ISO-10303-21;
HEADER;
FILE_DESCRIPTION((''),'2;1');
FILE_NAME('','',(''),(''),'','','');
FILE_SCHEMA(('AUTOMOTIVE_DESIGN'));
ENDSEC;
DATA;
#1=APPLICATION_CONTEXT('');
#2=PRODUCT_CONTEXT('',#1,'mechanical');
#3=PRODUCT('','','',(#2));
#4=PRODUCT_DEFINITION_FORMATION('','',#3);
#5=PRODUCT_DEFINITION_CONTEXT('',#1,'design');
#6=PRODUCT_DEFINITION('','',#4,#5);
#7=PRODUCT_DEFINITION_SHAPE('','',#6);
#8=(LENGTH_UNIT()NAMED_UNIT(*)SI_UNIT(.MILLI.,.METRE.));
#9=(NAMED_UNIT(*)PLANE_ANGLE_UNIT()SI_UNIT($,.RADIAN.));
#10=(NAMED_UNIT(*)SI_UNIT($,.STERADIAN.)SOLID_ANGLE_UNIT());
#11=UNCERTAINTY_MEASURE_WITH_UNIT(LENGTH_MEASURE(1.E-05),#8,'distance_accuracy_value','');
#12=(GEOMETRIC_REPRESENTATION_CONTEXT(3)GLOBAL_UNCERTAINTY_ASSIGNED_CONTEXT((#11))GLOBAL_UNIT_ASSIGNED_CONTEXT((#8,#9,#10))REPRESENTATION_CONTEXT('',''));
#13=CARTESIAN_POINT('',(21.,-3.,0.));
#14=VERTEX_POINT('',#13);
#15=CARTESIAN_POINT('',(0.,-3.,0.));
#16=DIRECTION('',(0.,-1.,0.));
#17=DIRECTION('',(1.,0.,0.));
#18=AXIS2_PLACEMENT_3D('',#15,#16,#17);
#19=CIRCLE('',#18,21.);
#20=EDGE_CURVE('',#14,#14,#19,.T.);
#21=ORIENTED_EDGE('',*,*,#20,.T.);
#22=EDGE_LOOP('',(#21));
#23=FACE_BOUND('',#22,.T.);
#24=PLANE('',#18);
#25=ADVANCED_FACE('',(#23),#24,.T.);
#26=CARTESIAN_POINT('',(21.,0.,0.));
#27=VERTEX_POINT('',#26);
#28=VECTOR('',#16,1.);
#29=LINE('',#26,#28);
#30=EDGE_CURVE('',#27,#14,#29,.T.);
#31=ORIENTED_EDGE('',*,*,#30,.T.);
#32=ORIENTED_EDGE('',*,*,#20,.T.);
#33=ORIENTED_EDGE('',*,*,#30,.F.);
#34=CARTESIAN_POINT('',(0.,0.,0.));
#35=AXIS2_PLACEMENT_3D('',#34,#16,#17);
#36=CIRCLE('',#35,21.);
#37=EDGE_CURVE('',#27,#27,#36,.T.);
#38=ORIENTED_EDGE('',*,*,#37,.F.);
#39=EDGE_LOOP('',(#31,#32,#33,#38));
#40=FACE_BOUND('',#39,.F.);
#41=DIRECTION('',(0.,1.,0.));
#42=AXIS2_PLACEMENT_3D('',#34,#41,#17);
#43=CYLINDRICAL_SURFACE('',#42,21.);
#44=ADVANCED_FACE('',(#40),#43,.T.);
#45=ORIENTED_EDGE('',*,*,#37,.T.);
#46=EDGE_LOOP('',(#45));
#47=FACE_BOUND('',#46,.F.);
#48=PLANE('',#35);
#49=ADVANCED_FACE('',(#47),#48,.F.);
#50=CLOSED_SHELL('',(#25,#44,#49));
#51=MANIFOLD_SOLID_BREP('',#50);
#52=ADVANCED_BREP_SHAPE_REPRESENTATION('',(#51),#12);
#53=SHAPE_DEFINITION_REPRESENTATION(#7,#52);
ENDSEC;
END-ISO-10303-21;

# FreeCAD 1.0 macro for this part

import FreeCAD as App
import Part
import Sketcher

V = App.Vector

doc = App.newDocument("Part")
body = doc.addObject("PartDesign::Body", "Body")

sketch1 = doc.addObject("Sketcher::SketchObject", "Sketch")
body.addObject(sketch1)
sketch1.AttachmentSupport = (doc.XZ_Plane, [""])
sketch1.MapMode = "FlatFace"
sketch1.addGeometry(Part.Circle(V(0, 0, 0), V(0, 0, 1), 21), False)
sketch1.addConstraint([
    Sketcher.Constraint("Coincident", 0, 3, -1, 1),
    Sketcher.Constraint("Diameter", 0, 42.0),
])
pad1 = doc.addObject("PartDesign::Pad", "Pad")
body.addObject(pad1)
pad1.Profile = sketch1
pad1.Length = 3

sketch2 = doc.addObject("Sketcher::SketchObject", "Sketch001")
body.addObject(sketch2)
sketch2.AttachmentSupport = (doc.XZ_Plane, [""])
sketch2.MapMode = "FlatFace"
sketch2.addGeometry([
    Part.Circle(V(0, 28.6, 0), V(0, 0, 1), 3.2),
    Part.Circle(V(0, 28.6, 0), V(0, 0, 1), 2.2),
    Part.Circle(V(24.9, -14.2, 0), V(0, 0, 1), 3.4),
    Part.Circle(V(24.9, -14.2, 0), V(0, 0, 1), 2.2),
    Part.Circle(V(-24.8, -14.2, 0), V(0, 0, 1), 3.2),
    Part.Circle(V(-24.8, -14.2, 0), V(0, 0, 1), 2.1),
], False)
sketch2.addConstraint([
    Sketcher.Constraint("Coincident", 1, 3, 0, 3),
    Sketcher.Constraint("Coincident", 3, 3, 2, 3),
    Sketcher.Constraint("Coincident", 5, 3, 4, 3),
    Sketcher.Constraint("PointOnObject", 0, 3, -2),
    Sketcher.Constraint("Horizontal", 3, 3, 4, 3),
    Sketcher.Constraint("Diameter", 1, 4.403192),
    Sketcher.Constraint("Diameter", 3, 4.44621),
    Sketcher.Constraint("Diameter", 0, 6.497752),
    Sketcher.Constraint("Diameter", 2, 6.785048),
    Sketcher.Constraint("Diameter", 4, 6.436856),
    Sketcher.Constraint("Diameter", 5, 4.195512),
    Sketcher.Constraint("DistanceX", 4, 3, -1, 1, 24.80519),
    Sketcher.Constraint("DistanceY", 2, 3, 0, 3, 42.821442),
    Sketcher.Constraint("DistanceY", -1, 1, 0, 3, 28.620865),
    Sketcher.Constraint("DistanceX", -1, 1, 2, 3, 24.881644),
])
pocket1 = doc.addObject("PartDesign::Pocket", "Pocket")
body.addObject(pocket1)
pocket1.Profile = sketch2
pocket1.Length = 25

sketch3 = doc.addObject("Sketcher::SketchObject", "Sketch002")
body.addObject(sketch3)
sketch3.AttachmentSupport = (doc.XZ_Plane, [""])
sketch3.MapMode = "FlatFace"
sketch3.addGeometry(Part.Circle(V(0, 28.7, 0), V(0, 0, 1), 3.4), False)
sketch3.addConstraint([
    Sketcher.Constraint("PointOnObject", 0, 3, -2),
    Sketcher.Constraint("Diameter", 0, 6.838264),
    Sketcher.Constraint("DistanceY", -1, 1, 0, 3, 28.712314),
])
pocket2 = doc.addObject("PartDesign::Pocket", "Pocket001")
body.addObject(pocket2)
pocket2.Profile = sketch3
pocket2.Length = 25

doc.recompute()
